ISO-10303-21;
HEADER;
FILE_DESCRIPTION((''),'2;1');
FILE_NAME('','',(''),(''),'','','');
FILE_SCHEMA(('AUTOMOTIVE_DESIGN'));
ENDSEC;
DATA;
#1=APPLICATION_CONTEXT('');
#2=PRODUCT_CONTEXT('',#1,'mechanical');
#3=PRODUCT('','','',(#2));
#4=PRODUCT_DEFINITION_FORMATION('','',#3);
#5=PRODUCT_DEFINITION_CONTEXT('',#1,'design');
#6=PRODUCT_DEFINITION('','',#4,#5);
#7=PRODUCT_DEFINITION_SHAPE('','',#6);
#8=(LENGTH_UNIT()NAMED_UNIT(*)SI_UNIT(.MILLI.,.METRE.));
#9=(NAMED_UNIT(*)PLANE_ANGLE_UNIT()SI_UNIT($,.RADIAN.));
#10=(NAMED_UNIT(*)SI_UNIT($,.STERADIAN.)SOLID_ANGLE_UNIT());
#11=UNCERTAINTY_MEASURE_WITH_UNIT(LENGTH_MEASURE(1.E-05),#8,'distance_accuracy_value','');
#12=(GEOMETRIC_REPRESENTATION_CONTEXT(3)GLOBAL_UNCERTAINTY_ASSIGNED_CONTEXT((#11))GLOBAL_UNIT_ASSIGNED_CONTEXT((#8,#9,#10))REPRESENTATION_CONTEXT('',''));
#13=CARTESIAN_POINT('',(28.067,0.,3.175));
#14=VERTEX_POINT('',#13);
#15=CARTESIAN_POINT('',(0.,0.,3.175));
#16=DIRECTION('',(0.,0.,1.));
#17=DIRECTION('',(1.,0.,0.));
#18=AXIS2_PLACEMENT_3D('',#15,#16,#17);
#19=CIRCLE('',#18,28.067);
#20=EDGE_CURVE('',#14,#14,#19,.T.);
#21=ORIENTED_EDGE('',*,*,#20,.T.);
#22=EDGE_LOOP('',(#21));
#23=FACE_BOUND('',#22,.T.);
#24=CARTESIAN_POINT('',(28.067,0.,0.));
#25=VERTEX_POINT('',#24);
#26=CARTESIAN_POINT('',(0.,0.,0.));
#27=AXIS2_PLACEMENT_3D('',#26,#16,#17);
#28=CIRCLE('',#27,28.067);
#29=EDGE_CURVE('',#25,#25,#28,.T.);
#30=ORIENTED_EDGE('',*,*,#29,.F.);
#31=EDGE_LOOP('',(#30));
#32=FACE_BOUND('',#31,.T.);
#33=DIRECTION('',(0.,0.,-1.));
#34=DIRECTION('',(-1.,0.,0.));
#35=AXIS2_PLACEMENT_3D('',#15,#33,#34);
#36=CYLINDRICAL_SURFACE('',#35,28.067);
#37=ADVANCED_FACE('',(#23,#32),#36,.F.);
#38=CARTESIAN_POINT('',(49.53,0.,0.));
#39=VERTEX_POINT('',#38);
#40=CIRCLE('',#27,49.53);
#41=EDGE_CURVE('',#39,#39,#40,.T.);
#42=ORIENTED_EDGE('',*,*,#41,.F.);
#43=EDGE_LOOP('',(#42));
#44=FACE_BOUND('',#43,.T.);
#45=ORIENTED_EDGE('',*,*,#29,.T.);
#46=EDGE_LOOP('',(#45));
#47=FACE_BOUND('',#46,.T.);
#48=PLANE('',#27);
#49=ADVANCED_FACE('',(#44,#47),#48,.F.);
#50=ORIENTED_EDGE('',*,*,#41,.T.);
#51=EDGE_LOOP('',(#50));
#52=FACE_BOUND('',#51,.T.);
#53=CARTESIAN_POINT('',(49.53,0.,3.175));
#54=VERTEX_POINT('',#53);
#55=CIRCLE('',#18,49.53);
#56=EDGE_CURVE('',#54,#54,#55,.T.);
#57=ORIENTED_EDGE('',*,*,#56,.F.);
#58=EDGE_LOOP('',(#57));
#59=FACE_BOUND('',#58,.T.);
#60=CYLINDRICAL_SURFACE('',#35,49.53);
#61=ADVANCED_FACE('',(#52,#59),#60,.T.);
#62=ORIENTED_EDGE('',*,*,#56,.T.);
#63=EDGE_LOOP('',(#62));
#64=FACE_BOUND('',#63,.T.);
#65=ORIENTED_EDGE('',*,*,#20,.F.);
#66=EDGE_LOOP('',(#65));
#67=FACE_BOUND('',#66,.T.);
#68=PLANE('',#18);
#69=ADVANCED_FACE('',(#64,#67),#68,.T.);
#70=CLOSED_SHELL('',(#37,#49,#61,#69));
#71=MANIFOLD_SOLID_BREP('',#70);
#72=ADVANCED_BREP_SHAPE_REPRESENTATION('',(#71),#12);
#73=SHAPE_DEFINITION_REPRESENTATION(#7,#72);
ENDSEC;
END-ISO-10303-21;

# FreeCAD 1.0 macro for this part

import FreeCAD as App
import Part
import Sketcher
from FreeCAD import Vector
Q = App.Units.Quantity

doc = App.newDocument("Part")
body = doc.addObject("PartDesign::Body", "Body")

# Sketch on XY plane
sketch1 = body.newObject("Sketcher::SketchObject", "Sketch")
sketch1.AttachmentSupport = (doc.getObject("XY_Plane"), [""])
sketch1.MapMode = "FlatFace"
sketch1.addGeometry([
    Part.Circle(Vector(0, 0, 0), Vector(0, 0, 1), 50),
    Part.Circle(Vector(0, 0, 0), Vector(0, 0, 1), 28),
], False)
sketch1.addConstraint([
    Sketcher.Constraint("Coincident", 0, 3, -1, 1),
    Sketcher.Constraint("Coincident", 1, 3, -1, 1),
    Sketcher.Constraint("Diameter", 0, Q("3.9 in")),
    Sketcher.Constraint("Diameter", 1, Q("2.21 in")),
])
pad1 = body.newObject("PartDesign::Pad", "Pad")
pad1.Profile = sketch1
pad1.Length = Q("0.125 in")

doc.recompute()
